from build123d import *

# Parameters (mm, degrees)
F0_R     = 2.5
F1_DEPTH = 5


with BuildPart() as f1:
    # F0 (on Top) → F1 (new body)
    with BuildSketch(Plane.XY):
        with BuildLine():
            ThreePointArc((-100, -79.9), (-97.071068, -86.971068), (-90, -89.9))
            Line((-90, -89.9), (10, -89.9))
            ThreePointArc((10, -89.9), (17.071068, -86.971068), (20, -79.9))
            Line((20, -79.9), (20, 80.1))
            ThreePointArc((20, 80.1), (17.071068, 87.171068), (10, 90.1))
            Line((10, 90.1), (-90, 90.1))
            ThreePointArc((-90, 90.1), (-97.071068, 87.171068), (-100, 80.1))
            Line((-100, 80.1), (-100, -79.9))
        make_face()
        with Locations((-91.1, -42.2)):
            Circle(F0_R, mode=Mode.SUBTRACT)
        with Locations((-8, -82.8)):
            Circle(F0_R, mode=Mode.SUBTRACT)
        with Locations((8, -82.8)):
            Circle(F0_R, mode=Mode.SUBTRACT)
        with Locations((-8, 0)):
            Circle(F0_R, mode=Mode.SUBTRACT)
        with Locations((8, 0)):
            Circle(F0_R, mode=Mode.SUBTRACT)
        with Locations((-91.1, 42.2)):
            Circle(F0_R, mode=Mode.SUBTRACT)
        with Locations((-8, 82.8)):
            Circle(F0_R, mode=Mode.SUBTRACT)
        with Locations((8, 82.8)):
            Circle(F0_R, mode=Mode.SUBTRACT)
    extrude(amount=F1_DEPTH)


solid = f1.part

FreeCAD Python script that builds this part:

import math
import FreeCAD as App
import Part
import Sketcher
from FreeCAD import Vector

doc = App.newDocument("Part")
params = doc.addObject("Spreadsheet::Sheet", "Params")
for row, (alias, value) in enumerate([
    ("sketch1_diameter", "5 mm"),
    ("sketch1_radius", "9.999999 mm"),
    ("sketch1_width", "100 mm"),
    ("sketch1_height", "160 mm"),
    ("pad1_length", "5 mm"),
], start=1):
    params.set(f"A{row}", alias)
    params.set(f"B{row}", "=" + value)
    params.setAlias(f"B{row}", alias)

body = doc.addObject("PartDesign::Body", "Body")

# Sketch on XY plane
sketch1 = doc.addObject("Sketcher::SketchObject", "Sketch")
body.addObject(sketch1)
sketch1.AttachmentSupport = (doc.XY_Plane, [""])
sketch1.MapMode = "FlatFace"
sketch1.addGeometry(Part.ArcOfCircle(Part.Circle(Vector(-90, -79.9, 0), Vector(0, 0, 1), 10), math.radians(180), math.radians(270)), False)
sketch1.addGeometry(Part.LineSegment(Vector(-90, -89.9, 0), Vector(10, -89.9, 0)), False)
sketch1.addGeometry(Part.ArcOfCircle(Part.Circle(Vector(10, -79.9, 0), Vector(0, 0, 1), 10), math.radians(-90), math.radians(0)), False)
sketch1.addGeometry(Part.LineSegment(Vector(20, -79.9, 0), Vector(20, 80.1, 0)), False)
sketch1.addGeometry(Part.ArcOfCircle(Part.Circle(Vector(10, 80.1, 0), Vector(0, 0, 1), 10), math.radians(0), math.radians(90)), False)
sketch1.addGeometry(Part.LineSegment(Vector(10, 90.1, 0), Vector(-90, 90.1, 0)), False)
sketch1.addGeometry(Part.ArcOfCircle(Part.Circle(Vector(-90, 80.1, 0), Vector(0, 0, 1), 10), math.radians(90), math.radians(180)), False)
sketch1.addGeometry(Part.LineSegment(Vector(-100, 80.1, 0), Vector(-100, -79.9, 0)), False)
sketch1.addGeometry(Part.Circle(Vector(-91.1, -42.2, 0), Vector(0, 0, 1), 2.5), False)
sketch1.addGeometry(Part.Circle(Vector(-8, -82.8, 0), Vector(0, 0, 1), 2.5), False)
sketch1.addGeometry(Part.Circle(Vector(8, -82.8, 0), Vector(0, 0, 1), 2.5), False)
sketch1.addGeometry(Part.Circle(Vector(-91.1, 42.2, 0), Vector(0, 0, 1), 2.5), False)
sketch1.addGeometry(Part.Circle(Vector(-8, 0, 0), Vector(0, 0, 1), 2.5), False)
sketch1.addGeometry(Part.Circle(Vector(8, 0, 0), Vector(0, 0, 1), 2.5), False)
sketch1.addGeometry(Part.Circle(Vector(-8, 82.8, 0), Vector(0, 0, 1), 2.5), False)
sketch1.addGeometry(Part.Circle(Vector(8, 82.8, 0), Vector(0, 0, 1), 2.5), False)
sketch1.addConstraint(Sketcher.Constraint("Tangent", 0, 2, 1, 1))
sketch1.addConstraint(Sketcher.Constraint("Tangent", 1, 2, 2, 1))
sketch1.addConstraint(Sketcher.Constraint("Tangent", 2, 2, 3, 1))
sketch1.addConstraint(Sketcher.Constraint("Tangent", 3, 2, 4, 1))
sketch1.addConstraint(Sketcher.Constraint("Tangent", 4, 2, 5, 1))
sketch1.addConstraint(Sketcher.Constraint("Tangent", 5, 2, 6, 1))
sketch1.addConstraint(Sketcher.Constraint("Tangent", 6, 2, 7, 1))
sketch1.addConstraint(Sketcher.Constraint("Tangent", 7, 2, 0, 1))
sketch1.addConstraint(Sketcher.Constraint("Horizontal", 1))
sketch1.addConstraint(Sketcher.Constraint("Vertical", 3))
sketch1.addConstraint(Sketcher.Constraint("Horizontal", 5))
sketch1.addConstraint(Sketcher.Constraint("Vertical", 7))
sketch1.addConstraint(Sketcher.Constraint("Equal", 0, 2))
sketch1.addConstraint(Sketcher.Constraint("Equal", 2, 4))
sketch1.addConstraint(Sketcher.Constraint("Equal", 4, 6))
sketch1.addConstraint(Sketcher.Constraint("Equal", 8, 9))
sketch1.addConstraint(Sketcher.Constraint("Equal", 9, 10))
sketch1.addConstraint(Sketcher.Constraint("Equal", 10, 11))
sketch1.addConstraint(Sketcher.Constraint("Equal", 11, 12))
sketch1.addConstraint(Sketcher.Constraint("Equal", 12, 13))
sketch1.addConstraint(Sketcher.Constraint("Equal", 13, 14))
sketch1.addConstraint(Sketcher.Constraint("Equal", 14, 15))
sketch1.addConstraint(Sketcher.Constraint("Symmetric", 12, 3, 13, 3, -1, 1))
sketch1.addConstraint(Sketcher.Constraint("Symmetric", 10, 3, 14, 3, -1, 1))
sketch1.addConstraint(Sketcher.Constraint("Symmetric", 9, 3, 15, 3, -1, 1))
sketch1.addConstraint(Sketcher.Constraint("Symmetric", 9, 3, 10, 3, -2))
sketch1.addConstraint(Sketcher.Constraint("Symmetric", 8, 3, 11, 3, -1))
sketch1.addConstraint(Sketcher.Constraint("PointOnObject", 12, 3, -1))
sketch1.addConstraint(Sketcher.Constraint("Vertical", 9, 3, 12, 3))
sketch1.addConstraint(Sketcher.Constraint("Diameter", 8, 5.0))
sketch1.addConstraint(Sketcher.Constraint("Radius", 0, 9.999999))
sketch1.addConstraint(Sketcher.Constraint("DistanceX", 1, 1, 1, 2, 100.0))
sketch1.addConstraint(Sketcher.Constraint("DistanceY", 3, 1, 3, 2, 160.0))
sketch1.addConstraint(Sketcher.Constraint("DistanceX", 0, 3, -1, 1, 90.000001))
sketch1.addConstraint(Sketcher.Constraint("DistanceX", 9, 3, -1, 1, 8.0))
sketch1.addConstraint(Sketcher.Constraint("DistanceY", 9, 3, 11, 3, 125.0))
sketch1.addConstraint(Sketcher.Constraint("DistanceY", 0, 3, -1, 1, 79.900001))
sketch1.addConstraint(Sketcher.Constraint("DistanceX", 8, 3, -1, 1, 91.1))
sketch1.addConstraint(Sketcher.Constraint("DistanceY", 8, 3, -1, 1, 42.2))
sketch1.setExpression("Constraints[29]", "Params.sketch1_diameter")
sketch1.setExpression("Constraints[30]", "Params.sketch1_radius")
sketch1.setExpression("Constraints[31]", "Params.sketch1_width")
sketch1.setExpression("Constraints[32]", "Params.sketch1_height")
pad1 = doc.addObject("PartDesign::Pad", "Pad")
body.addObject(pad1)
pad1.Profile = sketch1
pad1.setExpression("Length", "Params.pad1_length")

doc.recompute()
